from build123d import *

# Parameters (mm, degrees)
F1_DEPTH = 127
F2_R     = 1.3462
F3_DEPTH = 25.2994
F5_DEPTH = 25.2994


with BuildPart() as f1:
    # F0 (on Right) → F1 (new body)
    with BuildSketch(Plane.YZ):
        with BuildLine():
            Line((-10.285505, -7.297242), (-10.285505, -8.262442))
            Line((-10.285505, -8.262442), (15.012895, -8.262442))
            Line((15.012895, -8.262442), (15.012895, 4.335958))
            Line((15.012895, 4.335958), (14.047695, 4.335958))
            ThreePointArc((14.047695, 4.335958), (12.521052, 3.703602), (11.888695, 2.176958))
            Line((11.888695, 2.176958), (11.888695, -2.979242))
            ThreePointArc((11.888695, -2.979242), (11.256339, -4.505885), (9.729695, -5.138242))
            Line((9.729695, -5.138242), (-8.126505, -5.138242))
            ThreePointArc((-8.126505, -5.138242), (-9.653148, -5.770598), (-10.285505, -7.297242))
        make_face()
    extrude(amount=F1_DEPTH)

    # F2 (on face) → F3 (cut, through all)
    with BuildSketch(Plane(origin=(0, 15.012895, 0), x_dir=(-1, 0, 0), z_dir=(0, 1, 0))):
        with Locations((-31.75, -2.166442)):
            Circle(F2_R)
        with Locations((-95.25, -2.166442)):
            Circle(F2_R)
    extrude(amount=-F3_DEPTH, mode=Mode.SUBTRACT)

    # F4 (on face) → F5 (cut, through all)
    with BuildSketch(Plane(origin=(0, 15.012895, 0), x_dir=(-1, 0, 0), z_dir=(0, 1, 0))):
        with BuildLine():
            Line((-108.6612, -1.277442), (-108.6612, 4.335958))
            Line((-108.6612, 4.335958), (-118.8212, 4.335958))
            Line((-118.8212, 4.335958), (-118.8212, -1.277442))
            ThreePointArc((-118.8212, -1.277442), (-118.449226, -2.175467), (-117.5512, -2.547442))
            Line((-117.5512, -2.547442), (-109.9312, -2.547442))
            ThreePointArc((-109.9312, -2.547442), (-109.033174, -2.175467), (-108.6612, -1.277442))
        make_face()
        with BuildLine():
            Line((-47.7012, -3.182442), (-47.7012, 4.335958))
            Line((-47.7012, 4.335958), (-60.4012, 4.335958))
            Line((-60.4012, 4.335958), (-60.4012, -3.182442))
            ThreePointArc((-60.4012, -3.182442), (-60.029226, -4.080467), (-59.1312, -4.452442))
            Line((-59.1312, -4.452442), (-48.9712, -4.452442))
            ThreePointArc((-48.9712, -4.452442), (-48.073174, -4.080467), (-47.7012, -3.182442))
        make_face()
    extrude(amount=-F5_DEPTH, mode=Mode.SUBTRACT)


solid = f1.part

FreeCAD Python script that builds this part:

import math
import FreeCAD as App
import Part
import Sketcher
from FreeCAD import Vector
Q = App.Units.Quantity

doc = App.newDocument("Part")
body = doc.addObject("PartDesign::Body", "Body")

sketch1 = doc.addObject("Sketcher::SketchObject", "Sketch")
body.addObject(sketch1)
sketch1.AttachmentSupport = (doc.YZ_Plane, [""])
sketch1.MapMode = "FlatFace"
sketch1.addGeometry(Part.LineSegment(Vector(-10.285505, -7.297242, 0), Vector(-10.285505, -8.262442, 0)), False)
sketch1.addGeometry(Part.LineSegment(Vector(-10.285505, -8.262442, 0), Vector(15.012895, -8.262442, 0)), False)
sketch1.addGeometry(Part.LineSegment(Vector(15.012895, -8.262442, 0), Vector(15.012895, 4.335958, 0)), False)
sketch1.addGeometry(Part.LineSegment(Vector(15.012895, 4.335958, 0), Vector(14.047695, 4.335958, 0)), False)
sketch1.addGeometry(Part.ArcOfCircle(Part.Circle(Vector(14.047695, 2.176958, 0), Vector(0, 0, 1), 2.159), math.radians(90.000004), math.radians(179.999996)), False)
sketch1.addGeometry(Part.LineSegment(Vector(11.888695, 2.176958, 0), Vector(11.888695, -2.979242, 0)), False)
sketch1.addGeometry(Part.ArcOfCircle(Part.Circle(Vector(9.729695, -2.979242, 0), Vector(0, 0, 1), 2.159), math.radians(-89.999996), math.radians(-0.000004)), False)
sketch1.addGeometry(Part.LineSegment(Vector(9.729695, -5.138242, 0), Vector(-8.126505, -5.138242, 0)), False)
sketch1.addGeometry(Part.ArcOfCircle(Part.Circle(Vector(-8.126505, -7.297242, 0), Vector(0, 0, 1), 2.159), math.radians(90.000004), math.radians(179.999996)), False)
sketch1.addConstraint(Sketcher.Constraint("Coincident", 0, 2, 1, 1))
sketch1.addConstraint(Sketcher.Constraint("Coincident", 1, 2, 2, 1))
sketch1.addConstraint(Sketcher.Constraint("Coincident", 2, 2, 3, 1))
sketch1.addConstraint(Sketcher.Constraint("Tangent", 3, 2, 4, 1))
sketch1.addConstraint(Sketcher.Constraint("Tangent", 4, 2, 5, 1))
sketch1.addConstraint(Sketcher.Constraint("Tangent", 5, 2, 6, 2))
sketch1.addConstraint(Sketcher.Constraint("Tangent", 6, 1, 7, 1))
sketch1.addConstraint(Sketcher.Constraint("Tangent", 7, 2, 8, 1))
sketch1.addConstraint(Sketcher.Constraint("Tangent", 8, 2, 0, 1))
sketch1.addConstraint(Sketcher.Constraint("Vertical", 0))
sketch1.addConstraint(Sketcher.Constraint("Horizontal", 1))
sketch1.addConstraint(Sketcher.Constraint("Vertical", 2))
sketch1.addConstraint(Sketcher.Constraint("Horizontal", 3))
sketch1.addConstraint(Sketcher.Constraint("Vertical", 5))
sketch1.addConstraint(Sketcher.Constraint("Horizontal", 7))
sketch1.addConstraint(Sketcher.Constraint("Equal", 4, 6))
sketch1.addConstraint(Sketcher.Constraint("Equal", 6, 8))
sketch1.addConstraint(Sketcher.Constraint("Equal", 3, 0))
sketch1.addConstraint(Sketcher.Constraint("Radius", 4, Q("0.085 in")))
sketch1.addConstraint(Sketcher.Constraint("DistanceX", 1, 1, 1, 2, Q("0.996 in")))
sketch1.addConstraint(Sketcher.Constraint("DistanceX", 3, 2, 3, 1, Q("0.038 in")))
sketch1.addConstraint(Sketcher.Constraint("DistanceY", 2, 1, 2, 2, Q("0.496 in")))
sketch1.addConstraint(Sketcher.Constraint("DistanceY", 6, 3, -1, 1, Q("2.979242 mm")))
sketch1.addConstraint(Sketcher.Constraint("DistanceX", -1, 1, 4, 3, Q("14.047695 mm")))
pad1 = doc.addObject("PartDesign::Pad", "Pad")
body.addObject(pad1)
pad1.Profile = sketch1
pad1.Length = Q("5 in")

sketch2 = doc.addObject("Sketcher::SketchObject", "Sketch001")
body.addObject(sketch2)
sketch2.AttachmentSupport = (doc.XZ_Plane, [""])
sketch2.MapMode = "FlatFace"
sketch2.AttachmentOffset = App.Placement(Vector(0, 0, -15.012895), App.Rotation())
sketch2.addGeometry(Part.Circle(Vector(31.75, -2.166442, 0), Vector(0, 0, 1), 1.3462), False)
sketch2.addGeometry(Part.Circle(Vector(95.25, -2.166442, 0), Vector(0, 0, 1), 1.3462), False)
sketch2.addConstraint(Sketcher.Constraint("Equal", 0, 1))
sketch2.addConstraint(Sketcher.Constraint("Horizontal", 0, 3, 1, 3))
sketch2.addConstraint(Sketcher.Constraint("Diameter", 0, Q("0.106 in")))
sketch2.addConstraint(Sketcher.Constraint("DistanceX", 0, 3, 1, 3, Q("2.5 in")))
sketch2.addConstraint(Sketcher.Constraint("DistanceX", -1, 1, 0, 3, Q("1.25 in")))
sketch2.addConstraint(Sketcher.Constraint("DistanceY", 0, 3, -1, 1, Q("2.166442 mm")))
pocket1 = doc.addObject("PartDesign::Pocket", "Pocket")
body.addObject(pocket1)
pocket1.Profile = sketch2
pocket1.Type = "ThroughAll"
pocket1.Reversed = True

sketch3 = doc.addObject("Sketcher::SketchObject", "Sketch002")
body.addObject(sketch3)
sketch3.AttachmentSupport = (doc.XZ_Plane, [""])
sketch3.MapMode = "FlatFace"
sketch3.AttachmentOffset = App.Placement(Vector(0, 0, -15.012895), App.Rotation())
sketch3.addGeometry(Part.LineSegment(Vector(108.6612, -1.277442, 0), Vector(108.6612, 4.335958, 0)), False)
sketch3.addGeometry(Part.LineSegment(Vector(108.6612, 4.335958, 0), Vector(118.8212, 4.335958, 0)), False)
sketch3.addGeometry(Part.LineSegment(Vector(118.8212, 4.335958, 0), Vector(118.8212, -1.277442, 0)), False)
sketch3.addGeometry(Part.ArcOfCircle(Part.Circle(Vector(117.5512, -1.277442, 0), Vector(0, 0, 1), 1.27), math.radians(-89.999983), math.radians(-0.000017)), False)
sketch3.addGeometry(Part.LineSegment(Vector(117.5512, -2.547442, 0), Vector(109.9312, -2.547442, 0)), False)
sketch3.addGeometry(Part.ArcOfCircle(Part.Circle(Vector(109.9312, -1.277442, 0), Vector(0, 0, 1), 1.27), math.radians(-179.999983), math.radians(-90.000017)), False)
sketch3.addGeometry(Part.LineSegment(Vector(47.7012, -3.182442, 0), Vector(47.7012, 4.335958, 0)), False)
sketch3.addGeometry(Part.LineSegment(Vector(47.7012, 4.335958, 0), Vector(60.4012, 4.335958, 0)), False)
sketch3.addGeometry(Part.LineSegment(Vector(60.4012, 4.335958, 0), Vector(60.4012, -3.182442, 0)), False)
sketch3.addGeometry(Part.ArcOfCircle(Part.Circle(Vector(59.1312, -3.182442, 0), Vector(0, 0, 1), 1.27), math.radians(-89.999983), math.radians(-0.000017)), False)
sketch3.addGeometry(Part.LineSegment(Vector(59.1312, -4.452442, 0), Vector(48.9712, -4.452442, 0)), False)
sketch3.addGeometry(Part.ArcOfCircle(Part.Circle(Vector(48.9712, -3.182442, 0), Vector(0, 0, 1), 1.27), math.radians(-179.999983), math.radians(-90.000017)), False)
sketch3.addConstraint(Sketcher.Constraint("Coincident", 0, 2, 1, 1))
sketch3.addConstraint(Sketcher.Constraint("Coincident", 1, 2, 2, 1))
sketch3.addConstraint(Sketcher.Constraint("Tangent", 2, 2, 3, 2))
sketch3.addConstraint(Sketcher.Constraint("Tangent", 3, 1, 4, 1))
sketch3.addConstraint(Sketcher.Constraint("Tangent", 4, 2, 5, 2))
sketch3.addConstraint(Sketcher.Constraint("Tangent", 5, 1, 0, 1))
sketch3.addConstraint(Sketcher.Constraint("Coincident", 6, 2, 7, 1))
sketch3.addConstraint(Sketcher.Constraint("Coincident", 7, 2, 8, 1))
sketch3.addConstraint(Sketcher.Constraint("Tangent", 8, 2, 9, 2))
sketch3.addConstraint(Sketcher.Constraint("Tangent", 9, 1, 10, 1))
sketch3.addConstraint(Sketcher.Constraint("Tangent", 10, 2, 11, 2))
sketch3.addConstraint(Sketcher.Constraint("Tangent", 11, 1, 6, 1))
sketch3.addConstraint(Sketcher.Constraint("Vertical", 0))
sketch3.addConstraint(Sketcher.Constraint("Horizontal", 1))
sketch3.addConstraint(Sketcher.Constraint("Vertical", 2))
sketch3.addConstraint(Sketcher.Constraint("Horizontal", 4))
sketch3.addConstraint(Sketcher.Constraint("Vertical", 6))
sketch3.addConstraint(Sketcher.Constraint("Horizontal", 7))
sketch3.addConstraint(Sketcher.Constraint("Vertical", 8))
sketch3.addConstraint(Sketcher.Constraint("Horizontal", 10))
sketch3.addConstraint(Sketcher.Constraint("Equal", 3, 5))
sketch3.addConstraint(Sketcher.Constraint("Equal", 5, 9))
sketch3.addConstraint(Sketcher.Constraint("Equal", 9, 11))
sketch3.addConstraint(Sketcher.Constraint("Horizontal", 1, 2, 6, 2))
sketch3.addConstraint(Sketcher.Constraint("Equal", 1, 10))
sketch3.addConstraint(Sketcher.Constraint("Radius", 3, Q("0.05 in")))
sketch3.addConstraint(Sketcher.Constraint("DistanceX", 1, 1, 1, 2, Q("0.4 in")))
sketch3.addConstraint(Sketcher.Constraint("DistanceX", 9, 3, 5, 3, Q("2 in")))
sketch3.addConstraint(Sketcher.Constraint("DistanceY", 0, 1, 0, 2, Q("0.221 in")))
sketch3.addConstraint(Sketcher.Constraint("DistanceY", 6, 1, 6, 2, Q("0.296 in")))
sketch3.addConstraint(Sketcher.Constraint("DistanceX", -1, 1, 3, 3, Q("4.628 in")))
sketch3.addConstraint(Sketcher.Constraint("DistanceY", 3, 3, -1, 1, Q("1.277442 mm")))
pocket2 = doc.addObject("PartDesign::Pocket", "Pocket001")
body.addObject(pocket2)
pocket2.Profile = sketch3
pocket2.Type = "ThroughAll"
pocket2.Reversed = True

doc.recompute()
